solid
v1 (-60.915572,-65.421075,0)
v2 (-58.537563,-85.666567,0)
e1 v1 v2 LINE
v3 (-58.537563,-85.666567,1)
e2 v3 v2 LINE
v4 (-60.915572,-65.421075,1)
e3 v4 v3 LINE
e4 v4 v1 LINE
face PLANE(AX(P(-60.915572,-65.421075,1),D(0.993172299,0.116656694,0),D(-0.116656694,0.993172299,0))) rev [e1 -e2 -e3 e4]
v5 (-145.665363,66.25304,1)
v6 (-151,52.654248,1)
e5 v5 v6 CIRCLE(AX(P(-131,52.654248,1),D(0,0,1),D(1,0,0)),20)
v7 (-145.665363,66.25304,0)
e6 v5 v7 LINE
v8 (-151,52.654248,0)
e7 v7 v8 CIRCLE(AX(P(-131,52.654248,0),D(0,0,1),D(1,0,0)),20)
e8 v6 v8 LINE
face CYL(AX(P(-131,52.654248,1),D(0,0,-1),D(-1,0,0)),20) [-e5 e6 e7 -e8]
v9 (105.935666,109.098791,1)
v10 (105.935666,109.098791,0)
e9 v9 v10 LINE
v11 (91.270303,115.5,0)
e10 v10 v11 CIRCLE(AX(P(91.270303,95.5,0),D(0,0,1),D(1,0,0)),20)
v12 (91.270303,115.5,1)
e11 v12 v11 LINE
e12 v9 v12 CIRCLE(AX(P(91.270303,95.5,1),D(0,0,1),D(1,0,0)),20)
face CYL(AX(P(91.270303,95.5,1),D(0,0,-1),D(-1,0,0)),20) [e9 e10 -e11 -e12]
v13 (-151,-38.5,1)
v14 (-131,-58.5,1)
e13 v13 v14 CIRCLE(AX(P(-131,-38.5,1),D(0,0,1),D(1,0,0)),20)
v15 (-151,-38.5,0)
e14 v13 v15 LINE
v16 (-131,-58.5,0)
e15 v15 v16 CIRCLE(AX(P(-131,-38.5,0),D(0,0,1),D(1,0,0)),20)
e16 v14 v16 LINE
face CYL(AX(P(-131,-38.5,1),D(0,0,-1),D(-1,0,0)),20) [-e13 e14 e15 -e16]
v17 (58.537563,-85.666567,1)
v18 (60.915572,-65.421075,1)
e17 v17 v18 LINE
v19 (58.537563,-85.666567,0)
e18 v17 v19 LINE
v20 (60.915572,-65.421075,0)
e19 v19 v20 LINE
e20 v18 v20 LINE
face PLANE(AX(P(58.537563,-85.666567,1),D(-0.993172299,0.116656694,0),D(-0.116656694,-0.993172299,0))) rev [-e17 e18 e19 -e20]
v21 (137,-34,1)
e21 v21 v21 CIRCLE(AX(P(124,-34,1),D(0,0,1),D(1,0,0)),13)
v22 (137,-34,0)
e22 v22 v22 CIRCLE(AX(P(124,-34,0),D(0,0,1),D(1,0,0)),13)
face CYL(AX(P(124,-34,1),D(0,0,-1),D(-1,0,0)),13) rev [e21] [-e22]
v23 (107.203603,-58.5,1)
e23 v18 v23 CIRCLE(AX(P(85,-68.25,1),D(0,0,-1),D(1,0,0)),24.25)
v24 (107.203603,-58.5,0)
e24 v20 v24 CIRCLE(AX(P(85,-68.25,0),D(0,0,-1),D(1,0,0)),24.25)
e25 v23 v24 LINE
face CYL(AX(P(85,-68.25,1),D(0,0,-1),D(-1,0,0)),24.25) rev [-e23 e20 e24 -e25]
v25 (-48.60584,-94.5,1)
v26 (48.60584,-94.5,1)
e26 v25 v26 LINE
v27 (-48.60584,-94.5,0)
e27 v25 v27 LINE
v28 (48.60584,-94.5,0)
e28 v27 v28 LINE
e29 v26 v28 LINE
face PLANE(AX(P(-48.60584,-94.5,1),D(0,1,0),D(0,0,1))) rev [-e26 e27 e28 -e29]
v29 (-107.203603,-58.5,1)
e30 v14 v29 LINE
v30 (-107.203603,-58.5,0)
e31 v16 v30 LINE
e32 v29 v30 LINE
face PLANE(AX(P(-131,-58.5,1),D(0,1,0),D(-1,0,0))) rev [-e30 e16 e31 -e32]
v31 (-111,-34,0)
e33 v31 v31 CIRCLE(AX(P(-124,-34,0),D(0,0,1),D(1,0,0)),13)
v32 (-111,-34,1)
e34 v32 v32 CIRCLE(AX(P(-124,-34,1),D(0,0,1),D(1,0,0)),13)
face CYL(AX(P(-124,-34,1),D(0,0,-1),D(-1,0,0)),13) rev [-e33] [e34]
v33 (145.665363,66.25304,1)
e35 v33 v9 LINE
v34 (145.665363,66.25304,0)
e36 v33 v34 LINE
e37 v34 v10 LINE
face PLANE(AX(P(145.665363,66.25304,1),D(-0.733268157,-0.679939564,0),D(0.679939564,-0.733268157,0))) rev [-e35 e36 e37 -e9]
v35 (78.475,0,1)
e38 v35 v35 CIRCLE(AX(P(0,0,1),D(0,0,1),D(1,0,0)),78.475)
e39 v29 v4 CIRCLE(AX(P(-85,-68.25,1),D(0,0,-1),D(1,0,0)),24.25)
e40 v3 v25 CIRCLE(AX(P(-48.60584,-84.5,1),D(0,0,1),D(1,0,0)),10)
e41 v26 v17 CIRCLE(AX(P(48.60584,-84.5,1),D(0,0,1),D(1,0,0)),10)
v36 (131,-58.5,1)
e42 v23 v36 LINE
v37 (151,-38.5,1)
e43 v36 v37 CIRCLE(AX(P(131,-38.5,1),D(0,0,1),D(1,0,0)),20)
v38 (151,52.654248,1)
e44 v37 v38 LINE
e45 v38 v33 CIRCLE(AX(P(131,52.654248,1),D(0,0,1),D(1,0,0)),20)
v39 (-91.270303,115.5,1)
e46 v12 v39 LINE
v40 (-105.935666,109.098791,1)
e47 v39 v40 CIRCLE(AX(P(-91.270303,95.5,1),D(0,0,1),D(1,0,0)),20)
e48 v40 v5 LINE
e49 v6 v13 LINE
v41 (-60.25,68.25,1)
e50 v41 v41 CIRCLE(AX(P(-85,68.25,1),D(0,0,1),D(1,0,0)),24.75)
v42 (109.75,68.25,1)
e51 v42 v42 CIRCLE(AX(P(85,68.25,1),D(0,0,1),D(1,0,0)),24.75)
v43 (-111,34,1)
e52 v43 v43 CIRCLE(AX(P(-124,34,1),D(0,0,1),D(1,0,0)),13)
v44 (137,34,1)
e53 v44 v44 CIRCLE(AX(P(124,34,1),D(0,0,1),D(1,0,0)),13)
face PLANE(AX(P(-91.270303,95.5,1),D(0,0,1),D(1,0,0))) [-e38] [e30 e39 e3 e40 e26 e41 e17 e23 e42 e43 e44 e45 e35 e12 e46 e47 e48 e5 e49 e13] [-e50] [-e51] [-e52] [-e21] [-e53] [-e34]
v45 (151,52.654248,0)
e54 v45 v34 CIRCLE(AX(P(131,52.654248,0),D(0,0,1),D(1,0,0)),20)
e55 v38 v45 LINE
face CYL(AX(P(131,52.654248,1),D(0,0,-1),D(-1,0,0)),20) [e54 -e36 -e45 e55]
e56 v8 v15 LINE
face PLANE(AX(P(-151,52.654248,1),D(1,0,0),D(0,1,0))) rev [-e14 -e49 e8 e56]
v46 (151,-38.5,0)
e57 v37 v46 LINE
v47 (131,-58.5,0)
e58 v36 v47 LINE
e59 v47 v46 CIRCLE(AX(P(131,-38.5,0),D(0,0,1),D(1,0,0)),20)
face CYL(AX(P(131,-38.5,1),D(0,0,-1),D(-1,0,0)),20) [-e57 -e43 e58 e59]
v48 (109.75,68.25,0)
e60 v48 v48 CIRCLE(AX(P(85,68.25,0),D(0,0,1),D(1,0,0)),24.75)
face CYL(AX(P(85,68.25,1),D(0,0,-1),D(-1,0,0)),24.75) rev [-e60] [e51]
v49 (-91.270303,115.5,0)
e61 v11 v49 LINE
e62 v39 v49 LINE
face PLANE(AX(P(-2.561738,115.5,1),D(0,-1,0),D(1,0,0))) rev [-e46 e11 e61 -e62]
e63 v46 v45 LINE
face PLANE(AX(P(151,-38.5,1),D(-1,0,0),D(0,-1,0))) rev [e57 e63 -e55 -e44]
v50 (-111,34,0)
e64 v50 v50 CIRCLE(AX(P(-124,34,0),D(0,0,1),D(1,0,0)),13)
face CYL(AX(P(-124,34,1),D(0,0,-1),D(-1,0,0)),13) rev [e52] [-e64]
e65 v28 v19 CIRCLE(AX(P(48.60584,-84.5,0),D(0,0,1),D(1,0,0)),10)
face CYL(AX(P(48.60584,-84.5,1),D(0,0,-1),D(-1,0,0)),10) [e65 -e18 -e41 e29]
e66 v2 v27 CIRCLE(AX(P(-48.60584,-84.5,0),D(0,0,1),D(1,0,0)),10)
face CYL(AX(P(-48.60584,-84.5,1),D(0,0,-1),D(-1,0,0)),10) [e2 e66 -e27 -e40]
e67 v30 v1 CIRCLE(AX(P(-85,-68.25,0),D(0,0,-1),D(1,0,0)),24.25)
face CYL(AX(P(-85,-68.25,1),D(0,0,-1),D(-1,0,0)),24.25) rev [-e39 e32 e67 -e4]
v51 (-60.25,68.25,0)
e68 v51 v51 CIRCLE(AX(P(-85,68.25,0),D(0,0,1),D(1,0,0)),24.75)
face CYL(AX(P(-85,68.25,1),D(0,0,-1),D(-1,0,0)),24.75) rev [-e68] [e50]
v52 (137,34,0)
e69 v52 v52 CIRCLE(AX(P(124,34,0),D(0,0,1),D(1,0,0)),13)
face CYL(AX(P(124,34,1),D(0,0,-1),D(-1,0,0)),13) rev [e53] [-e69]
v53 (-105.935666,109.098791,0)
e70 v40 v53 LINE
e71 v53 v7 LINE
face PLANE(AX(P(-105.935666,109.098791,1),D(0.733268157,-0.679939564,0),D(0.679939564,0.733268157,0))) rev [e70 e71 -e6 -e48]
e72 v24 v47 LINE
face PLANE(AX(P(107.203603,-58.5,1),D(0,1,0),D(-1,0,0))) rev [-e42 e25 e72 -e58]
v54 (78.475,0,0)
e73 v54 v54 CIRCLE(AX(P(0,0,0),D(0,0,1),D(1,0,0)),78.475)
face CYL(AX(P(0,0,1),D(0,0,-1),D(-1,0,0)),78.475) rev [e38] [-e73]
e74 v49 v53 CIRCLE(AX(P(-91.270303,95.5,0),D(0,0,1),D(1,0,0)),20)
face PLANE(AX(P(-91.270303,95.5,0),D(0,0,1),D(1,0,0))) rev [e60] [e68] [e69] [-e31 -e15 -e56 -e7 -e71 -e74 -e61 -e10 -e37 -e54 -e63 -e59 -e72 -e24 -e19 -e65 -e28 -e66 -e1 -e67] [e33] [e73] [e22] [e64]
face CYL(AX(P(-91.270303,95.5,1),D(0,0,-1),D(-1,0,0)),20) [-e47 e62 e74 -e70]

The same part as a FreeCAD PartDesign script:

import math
import FreeCAD as App
import Part
import Sketcher

doc = App.newDocument("Part")
body = doc.addObject("PartDesign::Body", "Body")

# Sketch on XY plane
sketch1 = doc.addObject("Sketcher::SketchObject", "Sketch")
body.addObject(sketch1)
sketch1.AttachmentSupport = (doc.XY_Plane, [""])
sketch1.MapMode = "FlatFace"
sketch1.addGeometry([
    Part.ArcOfCircle(Part.Circle(App.Vector(-91.270303, 95.5, 0), App.Vector(0, 0, 1), 20), math.radians(90), math.radians(137.161079)),  # 0
    Part.LineSegment(App.Vector(-105.935666, 109.098791, 0), App.Vector(-145.665363, 66.25304, 0)),  # 1
    Part.ArcOfCircle(Part.Circle(App.Vector(-131, 52.654248, 0), App.Vector(0, 0, 1), 20), math.radians(137.161079), math.radians(180)),  # 2
    Part.LineSegment(App.Vector(-151, 52.654248, 0), App.Vector(-151, -38.5, 0)),  # 3
    Part.ArcOfCircle(Part.Circle(App.Vector(-131, -38.5, 0), App.Vector(0, 0, 1), 20), math.radians(180), math.radians(270)),  # 4
    Part.LineSegment(App.Vector(-131, -58.5, 0), App.Vector(-107.203603, -58.5, 0)),  # 5
    Part.ArcOfCircle(Part.Circle(App.Vector(-85, -68.25, 0), App.Vector(0, 0, 1), 24.25), math.radians(6.69919), math.radians(156.292862)),  # 6
    Part.LineSegment(App.Vector(-60.915572, -65.421075, 0), App.Vector(-58.537563, -85.666567, 0)),  # 7
    Part.ArcOfCircle(Part.Circle(App.Vector(-48.60584, -84.5, 0), App.Vector(0, 0, 1), 10), math.radians(-173.30081), math.radians(-90)),  # 8
    Part.LineSegment(App.Vector(-48.60584, -94.5, 0), App.Vector(48.60584, -94.5, 0)),  # 9
    Part.ArcOfCircle(Part.Circle(App.Vector(48.60584, -84.5, 0), App.Vector(0, 0, 1), 10), math.radians(-90), math.radians(-6.69919)),  # 10
    Part.LineSegment(App.Vector(58.537563, -85.666567, 0), App.Vector(60.915572, -65.421075, 0)),  # 11
    Part.ArcOfCircle(Part.Circle(App.Vector(85, -68.25, 0), App.Vector(0, 0, 1), 24.25), math.radians(23.707138), math.radians(173.30081)),  # 12
    Part.LineSegment(App.Vector(107.203603, -58.5, 0), App.Vector(131, -58.5, 0)),  # 13
    Part.ArcOfCircle(Part.Circle(App.Vector(131, -38.5, 0), App.Vector(0, 0, 1), 20), math.radians(-90), math.radians(0)),  # 14
    Part.LineSegment(App.Vector(151, -38.5, 0), App.Vector(151, 52.654248, 0)),  # 15
    Part.ArcOfCircle(Part.Circle(App.Vector(131, 52.654248, 0), App.Vector(0, 0, 1), 20), math.radians(0), math.radians(42.838921)),  # 16
    Part.LineSegment(App.Vector(145.665363, 66.25304, 0), App.Vector(105.935666, 109.098791, 0)),  # 17
    Part.ArcOfCircle(Part.Circle(App.Vector(91.270303, 95.5, 0), App.Vector(0, 0, 1), 20), math.radians(42.838921), math.radians(90)),  # 18
    Part.LineSegment(App.Vector(91.270303, 115.5, 0), App.Vector(-91.270303, 115.5, 0)),  # 19
    Part.Circle(App.Vector(-124, -34, 0), App.Vector(0, 0, 1), 13),  # 20
    Part.Circle(App.Vector(0, 0, 0), App.Vector(0, 0, 1), 78.475),  # 21
    Part.Circle(App.Vector(124, -34, 0), App.Vector(0, 0, 1), 13),  # 22
    Part.Circle(App.Vector(-124, 34, 0), App.Vector(0, 0, 1), 13),  # 23
    Part.Circle(App.Vector(-85, 68.25, 0), App.Vector(0, 0, 1), 24.75),  # 24
    Part.Circle(App.Vector(124, 34, 0), App.Vector(0, 0, 1), 13),  # 25
    Part.Circle(App.Vector(85, 68.25, 0), App.Vector(0, 0, 1), 24.75),  # 26
], False)
sketch1.addConstraint([
    Sketcher.Constraint("Tangent", 0, 2, 1, 1),
    Sketcher.Constraint("Tangent", 1, 2, 2, 1),
    Sketcher.Constraint("Tangent", 2, 2, 3, 1),
    Sketcher.Constraint("Tangent", 3, 2, 4, 1),
    Sketcher.Constraint("Tangent", 4, 2, 5, 1),
    Sketcher.Constraint("Coincident", 5, 2, 6, 2),
    Sketcher.Constraint("Tangent", 6, 1, 7, 1),
    Sketcher.Constraint("Tangent", 7, 2, 8, 1),
    Sketcher.Constraint("Tangent", 8, 2, 9, 1),
    Sketcher.Constraint("Tangent", 9, 2, 10, 1),
    Sketcher.Constraint("Tangent", 10, 2, 11, 1),
    Sketcher.Constraint("Tangent", 11, 2, 12, 2),
    Sketcher.Constraint("Coincident", 12, 1, 13, 1),
    Sketcher.Constraint("Tangent", 13, 2, 14, 1),
    Sketcher.Constraint("Tangent", 14, 2, 15, 1),
    Sketcher.Constraint("Tangent", 15, 2, 16, 1),
    Sketcher.Constraint("Tangent", 16, 2, 17, 1),
    Sketcher.Constraint("Tangent", 17, 2, 18, 1),
    Sketcher.Constraint("Tangent", 18, 2, 19, 1),
    Sketcher.Constraint("Tangent", 19, 2, 0, 1),
    Sketcher.Constraint("Vertical", 3),
    Sketcher.Constraint("Horizontal", 5),
    Sketcher.Constraint("Horizontal", 9),
    Sketcher.Constraint("Horizontal", 13),
    Sketcher.Constraint("Vertical", 15),
    Sketcher.Constraint("Horizontal", 19),
    Sketcher.Constraint("Coincident", 21, 3, -1, 1),
    Sketcher.Constraint("Equal", 0, 2),
    Sketcher.Constraint("Equal", 2, 4),
    Sketcher.Constraint("Equal", 8, 10),
    Sketcher.Constraint("Equal", 6, 12),
    Sketcher.Constraint("Equal", 4, 14),
    Sketcher.Constraint("Equal", 14, 16),
    Sketcher.Constraint("Equal", 16, 18),
    Sketcher.Constraint("Equal", 20, 22),
    Sketcher.Constraint("Equal", 22, 23),
    Sketcher.Constraint("Equal", 23, 25),
    Sketcher.Constraint("Equal", 24, 26),
    Sketcher.Constraint("Symmetric", 22, 3, 23, 3, -1, 1),
    Sketcher.Constraint("Symmetric", 12, 3, 24, 3, -1, 1),
    Sketcher.Constraint("Symmetric", 20, 3, 25, 3, -1, 1),
    Sketcher.Constraint("Symmetric", 6, 3, 26, 3, -1, 1),
    Sketcher.Constraint("Symmetric", 6, 3, 12, 3, -2),
    Sketcher.Constraint("Symmetric", 4, 3, 14, 3, -2),
    Sketcher.Constraint("Symmetric", 20, 3, 22, 3, -2),
    Sketcher.Constraint("Symmetric", 1, 2, 16, 2, -2),
    Sketcher.Constraint("Horizontal", 7, 2, 10, 2),
    Sketcher.Constraint("Diameter", 20, 26.0),
    Sketcher.Constraint("Radius", 0, 20.0),
    Sketcher.Constraint("Radius", 8, 10.0),
    Sketcher.Constraint("Diameter", 24, 49.5),
    Sketcher.Constraint("Diameter", 21, 156.95),
    Sketcher.Constraint("Radius", 6, 24.25),
    Sketcher.Constraint("DistanceX", 2, 3, -1, 1, 131.0),
    Sketcher.Constraint("DistanceX", 6, 3, -1, 1, 85.0),
    Sketcher.Constraint("DistanceX", 20, 3, -1, 1, 124.0),
    Sketcher.Constraint("DistanceY", 20, 3, -1, 1, 34.0),
    Sketcher.Constraint("DistanceY", 4, 3, 0, 3, 134.0),
    Sketcher.Constraint("DistanceY", 8, 3, 4, 3, 46.0),
    Sketcher.Constraint("DistanceY", -1, 1, 0, 3, 95.5),
    Sketcher.Constraint("DistanceY", 6, 3, -1, 1, 68.25),
    Sketcher.Constraint("DistanceX", 9, 1, 9, 2, 97.211681),
    Sketcher.Constraint("DistanceY", 3, 2, 3, 1, 91.154248),
    Sketcher.Constraint("DistanceX", 19, 2, 19, 1, 182.540606),
])
pad1 = doc.addObject("PartDesign::Pad", "Pad")
body.addObject(pad1)
pad1.Profile = sketch1
pad1.Length = 1

doc.recompute()
